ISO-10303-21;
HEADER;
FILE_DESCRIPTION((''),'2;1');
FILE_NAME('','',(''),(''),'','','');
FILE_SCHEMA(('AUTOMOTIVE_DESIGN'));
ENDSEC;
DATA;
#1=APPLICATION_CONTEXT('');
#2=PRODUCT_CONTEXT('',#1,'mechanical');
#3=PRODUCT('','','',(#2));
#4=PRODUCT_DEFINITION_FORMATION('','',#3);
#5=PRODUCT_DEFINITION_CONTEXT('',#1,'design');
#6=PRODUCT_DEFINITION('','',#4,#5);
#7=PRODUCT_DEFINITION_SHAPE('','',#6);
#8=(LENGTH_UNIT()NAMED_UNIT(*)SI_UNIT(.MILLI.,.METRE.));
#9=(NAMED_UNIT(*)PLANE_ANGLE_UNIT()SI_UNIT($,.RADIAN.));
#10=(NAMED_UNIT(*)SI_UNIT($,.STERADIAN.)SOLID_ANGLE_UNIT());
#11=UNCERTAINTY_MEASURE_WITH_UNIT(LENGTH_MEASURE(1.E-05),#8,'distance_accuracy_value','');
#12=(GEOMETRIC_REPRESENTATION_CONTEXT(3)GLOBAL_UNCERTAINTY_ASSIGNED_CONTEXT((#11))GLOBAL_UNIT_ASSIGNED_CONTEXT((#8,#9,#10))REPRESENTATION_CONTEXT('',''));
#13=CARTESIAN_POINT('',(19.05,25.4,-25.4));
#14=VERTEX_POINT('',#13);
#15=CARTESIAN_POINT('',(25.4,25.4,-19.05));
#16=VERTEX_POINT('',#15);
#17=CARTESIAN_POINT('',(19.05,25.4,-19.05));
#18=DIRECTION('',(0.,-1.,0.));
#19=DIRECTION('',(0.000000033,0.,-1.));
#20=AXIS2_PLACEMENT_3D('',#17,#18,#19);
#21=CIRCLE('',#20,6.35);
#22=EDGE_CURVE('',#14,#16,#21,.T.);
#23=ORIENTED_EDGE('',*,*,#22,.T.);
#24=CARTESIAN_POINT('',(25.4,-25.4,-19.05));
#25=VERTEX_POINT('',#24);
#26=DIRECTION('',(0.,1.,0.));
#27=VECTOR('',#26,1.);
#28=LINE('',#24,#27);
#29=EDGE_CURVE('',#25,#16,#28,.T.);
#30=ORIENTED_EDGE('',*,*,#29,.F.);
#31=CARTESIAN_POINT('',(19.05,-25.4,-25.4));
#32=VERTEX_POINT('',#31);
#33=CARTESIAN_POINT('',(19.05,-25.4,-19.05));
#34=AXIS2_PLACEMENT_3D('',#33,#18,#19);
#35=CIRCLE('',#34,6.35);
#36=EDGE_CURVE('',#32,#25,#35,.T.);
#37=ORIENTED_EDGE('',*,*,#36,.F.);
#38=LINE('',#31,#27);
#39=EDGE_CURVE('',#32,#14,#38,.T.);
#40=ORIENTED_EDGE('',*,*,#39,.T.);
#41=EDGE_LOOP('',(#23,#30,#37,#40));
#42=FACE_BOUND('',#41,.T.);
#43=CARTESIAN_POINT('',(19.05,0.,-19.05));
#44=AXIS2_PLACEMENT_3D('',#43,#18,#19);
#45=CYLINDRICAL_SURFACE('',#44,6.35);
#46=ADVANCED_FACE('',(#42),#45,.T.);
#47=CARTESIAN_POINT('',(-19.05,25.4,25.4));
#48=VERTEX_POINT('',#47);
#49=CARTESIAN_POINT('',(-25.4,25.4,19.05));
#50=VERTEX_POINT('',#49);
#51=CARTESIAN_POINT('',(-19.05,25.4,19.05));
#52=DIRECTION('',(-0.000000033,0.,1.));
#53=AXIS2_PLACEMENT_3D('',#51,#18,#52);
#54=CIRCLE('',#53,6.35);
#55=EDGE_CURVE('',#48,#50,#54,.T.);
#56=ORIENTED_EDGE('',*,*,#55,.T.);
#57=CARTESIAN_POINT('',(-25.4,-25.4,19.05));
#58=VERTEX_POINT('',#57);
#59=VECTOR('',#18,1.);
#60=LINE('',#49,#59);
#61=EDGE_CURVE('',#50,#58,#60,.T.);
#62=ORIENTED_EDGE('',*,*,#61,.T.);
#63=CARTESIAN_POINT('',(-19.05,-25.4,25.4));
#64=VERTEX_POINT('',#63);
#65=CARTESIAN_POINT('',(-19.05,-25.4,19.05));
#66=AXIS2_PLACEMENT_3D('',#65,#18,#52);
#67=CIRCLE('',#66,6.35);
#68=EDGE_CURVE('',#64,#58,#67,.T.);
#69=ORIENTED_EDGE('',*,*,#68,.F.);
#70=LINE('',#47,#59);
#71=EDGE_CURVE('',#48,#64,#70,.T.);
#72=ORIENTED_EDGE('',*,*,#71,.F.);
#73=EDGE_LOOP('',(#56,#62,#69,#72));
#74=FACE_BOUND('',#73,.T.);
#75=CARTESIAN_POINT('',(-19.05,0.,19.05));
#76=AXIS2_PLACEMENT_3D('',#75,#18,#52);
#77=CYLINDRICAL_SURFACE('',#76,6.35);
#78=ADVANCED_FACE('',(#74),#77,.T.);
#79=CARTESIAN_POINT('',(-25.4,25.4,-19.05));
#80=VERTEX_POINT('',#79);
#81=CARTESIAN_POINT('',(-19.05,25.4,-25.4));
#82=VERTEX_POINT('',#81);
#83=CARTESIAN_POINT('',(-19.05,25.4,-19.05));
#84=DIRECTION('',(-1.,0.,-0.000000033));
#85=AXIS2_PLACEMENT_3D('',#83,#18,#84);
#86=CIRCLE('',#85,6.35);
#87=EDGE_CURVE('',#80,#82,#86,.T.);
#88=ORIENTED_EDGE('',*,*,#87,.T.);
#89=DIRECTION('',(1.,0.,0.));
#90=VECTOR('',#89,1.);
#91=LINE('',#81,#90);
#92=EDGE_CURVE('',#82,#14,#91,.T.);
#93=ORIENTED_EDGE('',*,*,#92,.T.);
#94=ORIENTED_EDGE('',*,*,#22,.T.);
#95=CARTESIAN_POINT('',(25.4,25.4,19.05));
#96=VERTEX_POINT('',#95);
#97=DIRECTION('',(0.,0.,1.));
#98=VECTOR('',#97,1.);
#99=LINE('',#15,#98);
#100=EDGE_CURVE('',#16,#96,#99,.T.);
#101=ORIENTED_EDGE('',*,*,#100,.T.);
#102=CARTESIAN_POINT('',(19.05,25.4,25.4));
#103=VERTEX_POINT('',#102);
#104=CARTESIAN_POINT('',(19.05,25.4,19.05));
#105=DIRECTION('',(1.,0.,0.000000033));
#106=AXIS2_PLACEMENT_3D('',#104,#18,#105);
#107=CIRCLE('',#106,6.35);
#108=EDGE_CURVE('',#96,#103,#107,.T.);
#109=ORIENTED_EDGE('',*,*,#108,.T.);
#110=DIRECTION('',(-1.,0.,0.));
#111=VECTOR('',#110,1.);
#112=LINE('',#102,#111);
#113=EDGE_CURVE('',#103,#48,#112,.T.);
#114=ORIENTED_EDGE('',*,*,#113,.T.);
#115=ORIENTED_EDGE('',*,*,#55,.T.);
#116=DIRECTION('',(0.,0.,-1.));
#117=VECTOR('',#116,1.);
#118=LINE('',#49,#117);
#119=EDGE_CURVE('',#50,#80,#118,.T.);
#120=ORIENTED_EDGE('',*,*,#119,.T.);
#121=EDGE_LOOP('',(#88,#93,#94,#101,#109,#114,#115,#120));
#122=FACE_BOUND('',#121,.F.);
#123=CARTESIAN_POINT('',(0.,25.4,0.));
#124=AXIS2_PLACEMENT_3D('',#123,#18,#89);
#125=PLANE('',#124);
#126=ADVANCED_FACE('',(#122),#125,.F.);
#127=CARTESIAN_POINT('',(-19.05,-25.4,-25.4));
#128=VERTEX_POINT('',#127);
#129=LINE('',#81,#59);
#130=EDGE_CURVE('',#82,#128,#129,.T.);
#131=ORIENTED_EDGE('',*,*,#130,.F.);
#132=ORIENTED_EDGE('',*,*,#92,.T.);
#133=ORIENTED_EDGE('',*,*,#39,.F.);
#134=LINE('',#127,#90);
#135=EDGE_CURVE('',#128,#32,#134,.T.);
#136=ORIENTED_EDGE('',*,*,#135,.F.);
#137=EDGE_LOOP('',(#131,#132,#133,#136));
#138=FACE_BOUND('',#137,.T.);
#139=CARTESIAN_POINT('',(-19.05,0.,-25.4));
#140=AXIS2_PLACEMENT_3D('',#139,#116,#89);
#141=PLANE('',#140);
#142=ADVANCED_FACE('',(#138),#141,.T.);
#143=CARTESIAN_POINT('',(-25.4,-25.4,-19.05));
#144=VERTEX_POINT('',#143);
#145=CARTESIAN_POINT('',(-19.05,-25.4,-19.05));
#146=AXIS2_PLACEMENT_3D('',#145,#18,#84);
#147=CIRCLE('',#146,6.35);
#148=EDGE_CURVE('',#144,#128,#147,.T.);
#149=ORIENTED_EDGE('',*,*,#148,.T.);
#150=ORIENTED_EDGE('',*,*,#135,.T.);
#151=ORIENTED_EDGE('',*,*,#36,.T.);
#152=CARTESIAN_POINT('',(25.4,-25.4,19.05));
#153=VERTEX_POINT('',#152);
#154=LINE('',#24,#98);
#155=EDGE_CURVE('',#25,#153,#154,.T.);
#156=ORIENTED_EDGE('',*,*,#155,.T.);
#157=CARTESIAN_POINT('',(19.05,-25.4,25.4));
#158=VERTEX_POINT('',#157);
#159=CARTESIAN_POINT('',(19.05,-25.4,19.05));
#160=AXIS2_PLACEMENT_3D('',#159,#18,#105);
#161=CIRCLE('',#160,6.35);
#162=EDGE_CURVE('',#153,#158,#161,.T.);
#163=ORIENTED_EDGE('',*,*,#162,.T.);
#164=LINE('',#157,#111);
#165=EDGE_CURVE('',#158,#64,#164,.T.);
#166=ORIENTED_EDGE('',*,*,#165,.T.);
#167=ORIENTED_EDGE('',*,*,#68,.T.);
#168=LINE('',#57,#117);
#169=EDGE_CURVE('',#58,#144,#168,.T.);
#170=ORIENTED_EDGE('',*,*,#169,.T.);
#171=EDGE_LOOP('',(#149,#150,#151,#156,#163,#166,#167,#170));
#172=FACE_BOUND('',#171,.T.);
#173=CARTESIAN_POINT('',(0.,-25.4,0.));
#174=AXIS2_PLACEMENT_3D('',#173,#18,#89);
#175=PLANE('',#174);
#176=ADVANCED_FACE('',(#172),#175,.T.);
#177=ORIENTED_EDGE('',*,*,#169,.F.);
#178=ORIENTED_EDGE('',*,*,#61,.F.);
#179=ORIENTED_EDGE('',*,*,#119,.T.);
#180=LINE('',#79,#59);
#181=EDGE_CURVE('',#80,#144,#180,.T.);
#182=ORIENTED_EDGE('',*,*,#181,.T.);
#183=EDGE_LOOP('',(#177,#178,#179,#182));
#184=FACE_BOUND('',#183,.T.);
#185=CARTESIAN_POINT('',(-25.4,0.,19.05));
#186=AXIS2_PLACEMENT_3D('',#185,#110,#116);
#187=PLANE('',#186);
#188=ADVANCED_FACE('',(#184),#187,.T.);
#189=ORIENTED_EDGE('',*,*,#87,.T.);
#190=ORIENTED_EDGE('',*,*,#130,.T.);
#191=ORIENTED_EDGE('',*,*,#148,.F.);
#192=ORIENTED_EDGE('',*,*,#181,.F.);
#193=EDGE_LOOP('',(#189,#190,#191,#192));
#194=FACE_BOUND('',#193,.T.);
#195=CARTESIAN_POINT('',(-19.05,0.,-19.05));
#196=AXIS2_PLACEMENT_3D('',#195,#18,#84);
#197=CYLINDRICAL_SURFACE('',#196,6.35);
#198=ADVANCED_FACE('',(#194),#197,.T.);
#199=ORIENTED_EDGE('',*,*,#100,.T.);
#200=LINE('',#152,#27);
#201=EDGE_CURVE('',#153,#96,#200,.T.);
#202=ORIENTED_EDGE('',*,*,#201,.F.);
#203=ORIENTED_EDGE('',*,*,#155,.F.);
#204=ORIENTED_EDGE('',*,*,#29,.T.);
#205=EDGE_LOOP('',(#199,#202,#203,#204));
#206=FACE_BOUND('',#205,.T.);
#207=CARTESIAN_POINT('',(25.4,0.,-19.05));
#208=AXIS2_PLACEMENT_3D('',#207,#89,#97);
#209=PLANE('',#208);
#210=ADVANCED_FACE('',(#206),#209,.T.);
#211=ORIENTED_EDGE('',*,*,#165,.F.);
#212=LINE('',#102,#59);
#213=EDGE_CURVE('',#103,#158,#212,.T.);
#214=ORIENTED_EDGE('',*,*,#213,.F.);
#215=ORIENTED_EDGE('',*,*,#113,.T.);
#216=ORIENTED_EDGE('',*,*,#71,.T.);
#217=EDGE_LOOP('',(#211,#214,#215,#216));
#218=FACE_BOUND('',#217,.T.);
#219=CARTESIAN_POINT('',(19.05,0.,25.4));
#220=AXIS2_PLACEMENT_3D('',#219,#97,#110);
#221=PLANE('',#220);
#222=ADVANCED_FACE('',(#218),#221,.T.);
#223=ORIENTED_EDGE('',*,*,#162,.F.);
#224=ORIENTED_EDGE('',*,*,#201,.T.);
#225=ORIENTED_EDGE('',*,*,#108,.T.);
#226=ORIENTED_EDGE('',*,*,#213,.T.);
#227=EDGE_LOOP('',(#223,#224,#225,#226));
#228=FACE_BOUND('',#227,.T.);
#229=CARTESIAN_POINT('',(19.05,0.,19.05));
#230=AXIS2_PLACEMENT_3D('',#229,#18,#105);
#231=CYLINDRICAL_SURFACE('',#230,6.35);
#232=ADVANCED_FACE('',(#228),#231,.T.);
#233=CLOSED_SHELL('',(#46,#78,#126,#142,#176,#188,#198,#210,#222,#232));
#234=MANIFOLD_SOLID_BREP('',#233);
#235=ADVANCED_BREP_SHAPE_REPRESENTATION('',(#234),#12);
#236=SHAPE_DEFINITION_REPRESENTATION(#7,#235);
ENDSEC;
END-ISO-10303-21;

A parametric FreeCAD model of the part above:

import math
import FreeCAD as App
import Part
import Sketcher
from FreeCAD import Vector
Q = App.Units.Quantity

doc = App.newDocument("Part")
body = doc.addObject("PartDesign::Body", "Body")

sketch1 = body.newObject("Sketcher::SketchObject", "Sketch")
sketch1.AttachmentSupport = (doc.getObject("XZ_Plane"), [""])
sketch1.MapMode = "FlatFace"
sketch1.addGeometry([
    Part.ArcOfCircle(Part.Circle(Vector(19, 19, 0), Vector(0, 0, 1), 6), math.radians(0), math.radians(90)),
    Part.LineSegment(Vector(19, 25, 0), Vector(-19, 25, 0)),
    Part.ArcOfCircle(Part.Circle(Vector(-19, 19, 0), Vector(0, 0, 1), 6), math.radians(90), math.radians(180)),
    Part.LineSegment(Vector(-25, 19, 0), Vector(-25, -19, 0)),
    Part.ArcOfCircle(Part.Circle(Vector(-19, -19, 0), Vector(0, 0, 1), 6), math.radians(-180), math.radians(-90)),
    Part.LineSegment(Vector(-19, -25, 0), Vector(19, -25, 0)),
    Part.ArcOfCircle(Part.Circle(Vector(19, -19, 0), Vector(0, 0, 1), 6), math.radians(-90), math.radians(0)),
    Part.LineSegment(Vector(25, -19, 0), Vector(25, 19, 0)),
], False)
sketch1.addConstraint([
    Sketcher.Constraint("Tangent", 0, 2, 1, 1),
    Sketcher.Constraint("Tangent", 1, 2, 2, 1),
    Sketcher.Constraint("Tangent", 2, 2, 3, 1),
    Sketcher.Constraint("Tangent", 3, 2, 4, 1),
    Sketcher.Constraint("Tangent", 4, 2, 5, 1),
    Sketcher.Constraint("Tangent", 5, 2, 6, 1),
    Sketcher.Constraint("Tangent", 6, 2, 7, 1),
    Sketcher.Constraint("Tangent", 7, 2, 0, 1),
    Sketcher.Constraint("Horizontal", 1),
    Sketcher.Constraint("Vertical", 3),
    Sketcher.Constraint("Horizontal", 5),
    Sketcher.Constraint("Vertical", 7),
    Sketcher.Constraint("Equal", 0, 2),
    Sketcher.Constraint("Equal", 2, 4),
    Sketcher.Constraint("Equal", 4, 6),
    Sketcher.Constraint("Symmetric", 0, 3, 4, 3, -1, 1),
    Sketcher.Constraint("Equal", 5, 3),
    Sketcher.Constraint("Radius", 0, Q("0.25 in")),
    Sketcher.Constraint("DistanceX", 1, 2, 1, 1, Q("1.5 in")),
])
pad1 = body.newObject("PartDesign::Pad", "Pad")
pad1.Profile = sketch1
pad1.Length = Q("2 in")
pad1.Midplane = True

doc.recompute()
